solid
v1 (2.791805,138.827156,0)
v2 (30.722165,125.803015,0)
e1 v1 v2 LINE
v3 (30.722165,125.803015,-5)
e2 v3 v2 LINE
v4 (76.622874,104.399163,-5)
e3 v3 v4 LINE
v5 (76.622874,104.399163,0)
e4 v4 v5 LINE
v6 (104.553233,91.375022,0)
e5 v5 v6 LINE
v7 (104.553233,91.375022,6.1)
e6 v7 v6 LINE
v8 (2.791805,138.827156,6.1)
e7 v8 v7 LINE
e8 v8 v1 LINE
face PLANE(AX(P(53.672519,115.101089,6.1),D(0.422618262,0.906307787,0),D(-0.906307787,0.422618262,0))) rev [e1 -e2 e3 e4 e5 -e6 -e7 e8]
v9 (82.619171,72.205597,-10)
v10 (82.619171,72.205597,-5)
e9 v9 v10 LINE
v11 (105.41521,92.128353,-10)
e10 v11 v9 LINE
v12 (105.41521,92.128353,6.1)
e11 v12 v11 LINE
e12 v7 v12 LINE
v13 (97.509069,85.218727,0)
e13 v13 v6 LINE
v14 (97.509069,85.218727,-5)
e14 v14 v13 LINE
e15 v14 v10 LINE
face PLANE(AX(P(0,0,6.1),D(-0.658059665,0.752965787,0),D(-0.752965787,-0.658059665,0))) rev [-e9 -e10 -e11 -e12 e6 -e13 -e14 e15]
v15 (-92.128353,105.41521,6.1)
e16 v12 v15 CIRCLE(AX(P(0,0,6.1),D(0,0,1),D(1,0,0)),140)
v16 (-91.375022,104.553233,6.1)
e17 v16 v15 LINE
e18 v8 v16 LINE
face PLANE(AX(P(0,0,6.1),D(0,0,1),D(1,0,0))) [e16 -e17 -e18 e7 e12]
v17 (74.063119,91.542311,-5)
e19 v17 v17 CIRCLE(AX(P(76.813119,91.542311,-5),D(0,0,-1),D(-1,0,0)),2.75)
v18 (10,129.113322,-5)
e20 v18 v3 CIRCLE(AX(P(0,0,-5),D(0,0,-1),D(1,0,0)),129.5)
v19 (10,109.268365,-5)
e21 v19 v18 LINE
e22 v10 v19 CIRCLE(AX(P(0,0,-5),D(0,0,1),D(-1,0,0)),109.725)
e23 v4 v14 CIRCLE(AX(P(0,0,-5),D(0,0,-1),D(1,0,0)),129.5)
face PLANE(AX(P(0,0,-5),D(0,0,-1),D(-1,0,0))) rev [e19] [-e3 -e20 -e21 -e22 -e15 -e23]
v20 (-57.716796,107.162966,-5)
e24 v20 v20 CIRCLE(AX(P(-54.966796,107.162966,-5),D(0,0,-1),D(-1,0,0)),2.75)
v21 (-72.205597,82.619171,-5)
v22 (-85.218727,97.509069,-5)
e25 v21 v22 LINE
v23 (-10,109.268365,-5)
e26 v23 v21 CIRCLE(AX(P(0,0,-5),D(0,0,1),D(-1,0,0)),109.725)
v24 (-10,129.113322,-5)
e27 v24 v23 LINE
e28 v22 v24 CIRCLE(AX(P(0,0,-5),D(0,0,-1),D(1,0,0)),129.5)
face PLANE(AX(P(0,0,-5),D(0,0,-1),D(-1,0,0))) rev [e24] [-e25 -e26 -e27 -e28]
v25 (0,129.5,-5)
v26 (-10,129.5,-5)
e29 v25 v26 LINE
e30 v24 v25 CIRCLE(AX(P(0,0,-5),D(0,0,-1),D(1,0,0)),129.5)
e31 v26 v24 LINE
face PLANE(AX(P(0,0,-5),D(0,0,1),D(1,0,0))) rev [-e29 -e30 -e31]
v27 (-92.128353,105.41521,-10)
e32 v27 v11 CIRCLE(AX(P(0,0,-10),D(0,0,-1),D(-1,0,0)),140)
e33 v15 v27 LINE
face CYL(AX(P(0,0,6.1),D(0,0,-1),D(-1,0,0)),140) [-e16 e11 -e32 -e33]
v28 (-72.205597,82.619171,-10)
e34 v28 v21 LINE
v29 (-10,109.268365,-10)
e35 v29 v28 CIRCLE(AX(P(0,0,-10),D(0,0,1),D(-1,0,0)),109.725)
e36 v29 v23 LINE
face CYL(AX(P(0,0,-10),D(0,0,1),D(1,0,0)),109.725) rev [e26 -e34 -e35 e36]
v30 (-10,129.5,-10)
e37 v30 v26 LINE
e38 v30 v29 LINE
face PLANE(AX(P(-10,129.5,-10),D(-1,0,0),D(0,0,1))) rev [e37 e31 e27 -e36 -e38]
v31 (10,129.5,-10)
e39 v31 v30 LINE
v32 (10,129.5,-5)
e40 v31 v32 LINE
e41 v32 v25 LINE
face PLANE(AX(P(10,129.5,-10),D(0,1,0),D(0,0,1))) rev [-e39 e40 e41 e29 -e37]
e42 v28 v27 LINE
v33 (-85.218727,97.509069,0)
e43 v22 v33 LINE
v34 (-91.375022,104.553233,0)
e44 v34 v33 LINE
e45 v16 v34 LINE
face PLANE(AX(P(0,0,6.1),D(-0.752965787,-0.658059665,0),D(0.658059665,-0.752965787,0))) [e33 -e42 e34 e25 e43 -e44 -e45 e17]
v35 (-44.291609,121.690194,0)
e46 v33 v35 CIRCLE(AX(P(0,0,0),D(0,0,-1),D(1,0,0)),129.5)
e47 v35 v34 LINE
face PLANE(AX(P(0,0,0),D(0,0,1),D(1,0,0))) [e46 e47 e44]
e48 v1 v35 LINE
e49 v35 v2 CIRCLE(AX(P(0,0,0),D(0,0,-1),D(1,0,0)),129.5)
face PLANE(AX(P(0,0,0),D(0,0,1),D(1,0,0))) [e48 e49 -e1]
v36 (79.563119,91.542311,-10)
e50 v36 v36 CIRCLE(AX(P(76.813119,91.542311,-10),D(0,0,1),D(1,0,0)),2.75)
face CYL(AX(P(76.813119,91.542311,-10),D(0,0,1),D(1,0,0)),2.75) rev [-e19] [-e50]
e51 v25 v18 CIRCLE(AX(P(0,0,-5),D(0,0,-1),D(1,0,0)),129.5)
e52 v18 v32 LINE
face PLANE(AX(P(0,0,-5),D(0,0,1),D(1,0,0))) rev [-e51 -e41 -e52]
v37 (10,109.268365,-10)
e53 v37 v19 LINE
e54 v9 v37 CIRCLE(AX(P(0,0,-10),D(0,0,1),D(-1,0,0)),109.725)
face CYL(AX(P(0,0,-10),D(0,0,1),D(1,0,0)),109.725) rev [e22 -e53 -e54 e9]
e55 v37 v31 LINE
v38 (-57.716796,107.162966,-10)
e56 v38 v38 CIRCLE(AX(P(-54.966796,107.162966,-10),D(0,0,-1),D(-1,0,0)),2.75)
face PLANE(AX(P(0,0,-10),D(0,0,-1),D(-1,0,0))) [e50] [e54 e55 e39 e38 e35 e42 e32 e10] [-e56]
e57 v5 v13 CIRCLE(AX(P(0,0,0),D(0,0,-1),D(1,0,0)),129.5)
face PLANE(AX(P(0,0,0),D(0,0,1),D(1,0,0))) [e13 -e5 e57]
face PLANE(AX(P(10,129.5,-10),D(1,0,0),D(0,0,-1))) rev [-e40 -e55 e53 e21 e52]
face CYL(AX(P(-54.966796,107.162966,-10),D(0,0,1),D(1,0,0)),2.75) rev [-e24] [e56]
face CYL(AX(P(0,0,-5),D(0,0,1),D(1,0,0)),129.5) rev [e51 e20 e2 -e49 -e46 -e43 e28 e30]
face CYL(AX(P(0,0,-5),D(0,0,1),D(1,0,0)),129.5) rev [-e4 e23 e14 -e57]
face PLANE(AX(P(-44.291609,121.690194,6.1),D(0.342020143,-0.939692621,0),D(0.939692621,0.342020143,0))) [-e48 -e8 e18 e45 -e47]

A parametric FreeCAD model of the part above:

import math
import FreeCAD as App
import Part
import Sketcher
Q = App.Units.Quantity

doc = App.newDocument("Part")
body = doc.addObject("PartDesign::Body", "Body")

# Sketch on XY plane
sketch1 = body.newObject("Sketcher::SketchObject", "Sketch")
sketch1.AttachmentSupport = (doc.getObject("XY_Plane"), [""])
sketch1.MapMode = "FlatFace"
sketch1.addGeometry(Part.LineSegment(App.Vector(2.8, 138.8, 0), App.Vector(104.6, 91.4, 0)), False)
sketch1.addGeometry(Part.LineSegment(App.Vector(104.6, 91.4, 0), App.Vector(105.4, 92.1, 0)), False)
sketch1.addGeometry(Part.ArcOfCircle(Part.Circle(App.Vector(0, 0, 0), App.Vector(0, 0, 1), 140), math.radians(41), math.radians(131)), False)
sketch1.addGeometry(Part.LineSegment(App.Vector(-92.1, 105.4, 0), App.Vector(-91.4, 104.6, 0)), False)
sketch1.addGeometry(Part.LineSegment(App.Vector(-91.4, 104.6, 0), App.Vector(2.8, 138.8, 0)), False)
sketch1.addConstraint(Sketcher.Constraint("Coincident", 0, 2, 1, 1))
sketch1.addConstraint(Sketcher.Constraint("Coincident", 1, 2, 2, 1))
sketch1.addConstraint(Sketcher.Constraint("Coincident", 2, 2, 3, 1))
sketch1.addConstraint(Sketcher.Constraint("Coincident", 3, 2, 4, 1))
sketch1.addConstraint(Sketcher.Constraint("Coincident", 4, 2, 0, 1))
sketch1.addConstraint(Sketcher.Constraint("Coincident", 2, 3, -1, 1))
sketch1.addConstraint(Sketcher.Constraint("Perpendicular", 1, 3))
sketch1.addConstraint(Sketcher.Constraint("Equal", 1, 3))
sketch1.addConstraint(Sketcher.Constraint("Radius", 2, 140.0))
sketch1.addConstraint(Sketcher.Constraint("Angle", 0, Q("-25 deg")))
sketch1.addConstraint(Sketcher.Constraint("Angle", 4, Q("20 deg")))
sketch1.addConstraint(Sketcher.Constraint("DistanceX", -1, 1, 1, 2, 105.41521))
sketch1.addConstraint(Sketcher.Constraint("DistanceY", -1, 1, 2, 2, 105.41521))
sketch1.addConstraint(Sketcher.Constraint("DistanceY", 0, 2, 1, 2, 0.753331))
sketch1.addConstraint(Sketcher.Constraint("DistanceY", 0, 2, 3, 2, 13.178211))
pad1 = body.newObject("PartDesign::Pad", "Pad")
pad1.Profile = sketch1
pad1.Length = 6.1

# Sketch on XY plane
sketch2 = body.newObject("Sketcher::SketchObject", "Sketch001")
sketch2.AttachmentSupport = (doc.getObject("XY_Plane"), [""])
sketch2.MapMode = "FlatFace"
sketch2.AttachmentOffset = App.Placement(App.Vector(0, 0, -5), App.Rotation())
sketch2.addGeometry(Part.LineSegment(App.Vector(31, 126, 0), App.Vector(77, 104, 0)), False)
sketch2.addGeometry(Part.ArcOfCircle(Part.Circle(App.Vector(0, 0, 0), App.Vector(0, 0, 1), 130), math.radians(41.15), math.radians(53.72)), False)
sketch2.addGeometry(Part.LineSegment(App.Vector(98, 85, 0), App.Vector(105, 92, 0)), False)
sketch2.addGeometry(Part.ArcOfCircle(Part.Circle(App.Vector(0, 0, 0), App.Vector(0, 0, 1), 140), math.radians(41), math.radians(131)), False)
sketch2.addGeometry(Part.LineSegment(App.Vector(-92, 105, 0), App.Vector(-85, 98, 0)), False)
sketch2.addGeometry(Part.ArcOfCircle(Part.Circle(App.Vector(0, 0, 0), App.Vector(0, 0, 1), 130), math.radians(76), math.radians(131)), False)
sketch2.addConstraint(Sketcher.Constraint("Coincident", 0, 2, 1, 2))
sketch2.addConstraint(Sketcher.Constraint("Coincident", 1, 1, 2, 1))
sketch2.addConstraint(Sketcher.Constraint("Coincident", 2, 2, 3, 1))
sketch2.addConstraint(Sketcher.Constraint("Coincident", 3, 2, 4, 1))
sketch2.addConstraint(Sketcher.Constraint("Coincident", 4, 2, 5, 2))
sketch2.addConstraint(Sketcher.Constraint("Coincident", 5, 1, 0, 1))
sketch2.addConstraint(Sketcher.Constraint("Coincident", 1, 3, -1, 1))
sketch2.addConstraint(Sketcher.Constraint("Coincident", 3, 3, -1, 1))
sketch2.addConstraint(Sketcher.Constraint("Coincident", 5, 3, -1, 1))
sketch2.addConstraint(Sketcher.Constraint("Equal", 1, 5))
sketch2.addConstraint(Sketcher.Constraint("Perpendicular", 2, 4))
sketch2.addConstraint(Sketcher.Constraint("Radius", 3, 140.0))
sketch2.addConstraint(Sketcher.Constraint("Radius", 1, 129.5))
sketch2.addConstraint(Sketcher.Constraint("Angle", 0, Q("-25 deg")))
sketch2.addConstraint(Sketcher.Constraint("DistanceX", 4, 2, 0, 2, 161.841601))
sketch2.addConstraint(Sketcher.Constraint("Distance", 0, 50.645829))
sketch2.addConstraint(Sketcher.Constraint("DistanceX", -1, 1, 1, 1, 97.509069))
sketch2.addConstraint(Sketcher.Constraint("DistanceX", -1, 1, 2, 2, 105.41521))
pad2 = body.newObject("PartDesign::Pad", "Pad001")
pad2.Profile = sketch2
pad2.Length = 5

# Sketch on XY plane
sketch3 = body.newObject("Sketcher::SketchObject", "Sketch002")
sketch3.AttachmentSupport = (doc.getObject("XY_Plane"), [""])
sketch3.MapMode = "FlatFace"
sketch3.AttachmentOffset = App.Placement(App.Vector(0, 0, -10), App.Rotation())
sketch3.addGeometry(Part.LineSegment(App.Vector(10, 129.5, 0), App.Vector(-10, 129.5, 0)), False)
sketch3.addGeometry(Part.LineSegment(App.Vector(-10, 129.5, 0), App.Vector(-10, 109.3, 0)), False)
sketch3.addGeometry(Part.ArcOfCircle(Part.Circle(App.Vector(0, 0, 0), App.Vector(0, 0, 1), 109.7), math.radians(95), math.radians(131)), False)
sketch3.addGeometry(Part.LineSegment(App.Vector(-72.2, 82.6, 0), App.Vector(-92.1, 105.4, 0)), False)
sketch3.addGeometry(Part.ArcOfCircle(Part.Circle(App.Vector(0, 0, 0), App.Vector(0, 0, 1), 140), math.radians(41), math.radians(131)), False)
sketch3.addGeometry(Part.LineSegment(App.Vector(105.4, 92.1, 0), App.Vector(82.6, 72.2, 0)), False)
sketch3.addGeometry(Part.ArcOfCircle(Part.Circle(App.Vector(0, 0, 0), App.Vector(0, 0, 1), 109.7), math.radians(41), math.radians(85)), False)
sketch3.addGeometry(Part.LineSegment(App.Vector(10, 109.3, 0), App.Vector(10, 129.5, 0)), False)
sketch3.addGeometry(Part.Circle(App.Vector(-55, 107.2, 0), App.Vector(0, 0, 1), 2.8), False)
sketch3.addConstraint(Sketcher.Constraint("Coincident", 0, 2, 1, 1))
sketch3.addConstraint(Sketcher.Constraint("Coincident", 1, 2, 2, 1))
sketch3.addConstraint(Sketcher.Constraint("Coincident", 2, 2, 3, 1))
sketch3.addConstraint(Sketcher.Constraint("Coincident", 3, 2, 4, 2))
sketch3.addConstraint(Sketcher.Constraint("Coincident", 4, 1, 5, 1))
sketch3.addConstraint(Sketcher.Constraint("Coincident", 5, 2, 6, 1))
sketch3.addConstraint(Sketcher.Constraint("Coincident", 6, 2, 7, 1))
sketch3.addConstraint(Sketcher.Constraint("Coincident", 7, 2, 0, 1))
sketch3.addConstraint(Sketcher.Constraint("Horizontal", 0))
sketch3.addConstraint(Sketcher.Constraint("Vertical", 1))
sketch3.addConstraint(Sketcher.Constraint("Vertical", 7))
sketch3.addConstraint(Sketcher.Constraint("Coincident", 2, 3, -1, 1))
sketch3.addConstraint(Sketcher.Constraint("Coincident", 4, 3, -1, 1))
sketch3.addConstraint(Sketcher.Constraint("Coincident", 6, 3, -1, 1))
sketch3.addConstraint(Sketcher.Constraint("Equal", 2, 6))
sketch3.addConstraint(Sketcher.Constraint("Perpendicular", 3, 5))
sketch3.addConstraint(Sketcher.Constraint("Horizontal", 1, 2, 6, 2))
sketch3.addConstraint(Sketcher.Constraint("Radius", 4, 140.0))
sketch3.addConstraint(Sketcher.Constraint("Diameter", 8, 5.5))
sketch3.addConstraint(Sketcher.Constraint("DistanceX", 0, 2, 0, 1, 20.0))
sketch3.addConstraint(Sketcher.Constraint("Radius", 2, 109.725))
sketch3.addConstraint(Sketcher.Constraint("DistanceY", -1, 1, 0, 2, 129.5))
sketch3.addConstraint(Sketcher.Constraint("DistanceY", 8, 3, 1, 2, 2.105399))
sketch3.addConstraint(Sketcher.Constraint("DistanceX", 2, 2, 8, 3, 17.2388))
sketch3.addConstraint(Sketcher.Constraint("DistanceY", -1, 1, 2, 2, 82.619171))
sketch3.addConstraint(Sketcher.Constraint("DistanceY", -1, 1, 3, 2, 105.41521))
sketch3.addConstraint(Sketcher.Constraint("DistanceX", -1, 1, 4, 1, 105.41521))
pad3 = body.newObject("PartDesign::Pad", "Pad002")
pad3.Profile = sketch3
pad3.Length = 5

# Sketch on XY plane
sketch4 = body.newObject("Sketcher::SketchObject", "Sketch003")
sketch4.AttachmentSupport = (doc.getObject("XY_Plane"), [""])
sketch4.MapMode = "FlatFace"
sketch4.addGeometry(Part.Circle(App.Vector(76.8, 91.5, 0), App.Vector(0, 0, 1), 2.8), False)
sketch4.addConstraint(Sketcher.Constraint("Diameter", 0, 5.5))
sketch4.addConstraint(Sketcher.Constraint("DistanceX", -1, 1, 0, 3, 76.813119))
sketch4.addConstraint(Sketcher.Constraint("DistanceY", -1, 1, 0, 3, 91.542311))
pocket1 = body.newObject("PartDesign::Pocket", "Pocket")
pocket1.Profile = sketch4
pocket1.Type = "ThroughAll"

doc.recompute()
